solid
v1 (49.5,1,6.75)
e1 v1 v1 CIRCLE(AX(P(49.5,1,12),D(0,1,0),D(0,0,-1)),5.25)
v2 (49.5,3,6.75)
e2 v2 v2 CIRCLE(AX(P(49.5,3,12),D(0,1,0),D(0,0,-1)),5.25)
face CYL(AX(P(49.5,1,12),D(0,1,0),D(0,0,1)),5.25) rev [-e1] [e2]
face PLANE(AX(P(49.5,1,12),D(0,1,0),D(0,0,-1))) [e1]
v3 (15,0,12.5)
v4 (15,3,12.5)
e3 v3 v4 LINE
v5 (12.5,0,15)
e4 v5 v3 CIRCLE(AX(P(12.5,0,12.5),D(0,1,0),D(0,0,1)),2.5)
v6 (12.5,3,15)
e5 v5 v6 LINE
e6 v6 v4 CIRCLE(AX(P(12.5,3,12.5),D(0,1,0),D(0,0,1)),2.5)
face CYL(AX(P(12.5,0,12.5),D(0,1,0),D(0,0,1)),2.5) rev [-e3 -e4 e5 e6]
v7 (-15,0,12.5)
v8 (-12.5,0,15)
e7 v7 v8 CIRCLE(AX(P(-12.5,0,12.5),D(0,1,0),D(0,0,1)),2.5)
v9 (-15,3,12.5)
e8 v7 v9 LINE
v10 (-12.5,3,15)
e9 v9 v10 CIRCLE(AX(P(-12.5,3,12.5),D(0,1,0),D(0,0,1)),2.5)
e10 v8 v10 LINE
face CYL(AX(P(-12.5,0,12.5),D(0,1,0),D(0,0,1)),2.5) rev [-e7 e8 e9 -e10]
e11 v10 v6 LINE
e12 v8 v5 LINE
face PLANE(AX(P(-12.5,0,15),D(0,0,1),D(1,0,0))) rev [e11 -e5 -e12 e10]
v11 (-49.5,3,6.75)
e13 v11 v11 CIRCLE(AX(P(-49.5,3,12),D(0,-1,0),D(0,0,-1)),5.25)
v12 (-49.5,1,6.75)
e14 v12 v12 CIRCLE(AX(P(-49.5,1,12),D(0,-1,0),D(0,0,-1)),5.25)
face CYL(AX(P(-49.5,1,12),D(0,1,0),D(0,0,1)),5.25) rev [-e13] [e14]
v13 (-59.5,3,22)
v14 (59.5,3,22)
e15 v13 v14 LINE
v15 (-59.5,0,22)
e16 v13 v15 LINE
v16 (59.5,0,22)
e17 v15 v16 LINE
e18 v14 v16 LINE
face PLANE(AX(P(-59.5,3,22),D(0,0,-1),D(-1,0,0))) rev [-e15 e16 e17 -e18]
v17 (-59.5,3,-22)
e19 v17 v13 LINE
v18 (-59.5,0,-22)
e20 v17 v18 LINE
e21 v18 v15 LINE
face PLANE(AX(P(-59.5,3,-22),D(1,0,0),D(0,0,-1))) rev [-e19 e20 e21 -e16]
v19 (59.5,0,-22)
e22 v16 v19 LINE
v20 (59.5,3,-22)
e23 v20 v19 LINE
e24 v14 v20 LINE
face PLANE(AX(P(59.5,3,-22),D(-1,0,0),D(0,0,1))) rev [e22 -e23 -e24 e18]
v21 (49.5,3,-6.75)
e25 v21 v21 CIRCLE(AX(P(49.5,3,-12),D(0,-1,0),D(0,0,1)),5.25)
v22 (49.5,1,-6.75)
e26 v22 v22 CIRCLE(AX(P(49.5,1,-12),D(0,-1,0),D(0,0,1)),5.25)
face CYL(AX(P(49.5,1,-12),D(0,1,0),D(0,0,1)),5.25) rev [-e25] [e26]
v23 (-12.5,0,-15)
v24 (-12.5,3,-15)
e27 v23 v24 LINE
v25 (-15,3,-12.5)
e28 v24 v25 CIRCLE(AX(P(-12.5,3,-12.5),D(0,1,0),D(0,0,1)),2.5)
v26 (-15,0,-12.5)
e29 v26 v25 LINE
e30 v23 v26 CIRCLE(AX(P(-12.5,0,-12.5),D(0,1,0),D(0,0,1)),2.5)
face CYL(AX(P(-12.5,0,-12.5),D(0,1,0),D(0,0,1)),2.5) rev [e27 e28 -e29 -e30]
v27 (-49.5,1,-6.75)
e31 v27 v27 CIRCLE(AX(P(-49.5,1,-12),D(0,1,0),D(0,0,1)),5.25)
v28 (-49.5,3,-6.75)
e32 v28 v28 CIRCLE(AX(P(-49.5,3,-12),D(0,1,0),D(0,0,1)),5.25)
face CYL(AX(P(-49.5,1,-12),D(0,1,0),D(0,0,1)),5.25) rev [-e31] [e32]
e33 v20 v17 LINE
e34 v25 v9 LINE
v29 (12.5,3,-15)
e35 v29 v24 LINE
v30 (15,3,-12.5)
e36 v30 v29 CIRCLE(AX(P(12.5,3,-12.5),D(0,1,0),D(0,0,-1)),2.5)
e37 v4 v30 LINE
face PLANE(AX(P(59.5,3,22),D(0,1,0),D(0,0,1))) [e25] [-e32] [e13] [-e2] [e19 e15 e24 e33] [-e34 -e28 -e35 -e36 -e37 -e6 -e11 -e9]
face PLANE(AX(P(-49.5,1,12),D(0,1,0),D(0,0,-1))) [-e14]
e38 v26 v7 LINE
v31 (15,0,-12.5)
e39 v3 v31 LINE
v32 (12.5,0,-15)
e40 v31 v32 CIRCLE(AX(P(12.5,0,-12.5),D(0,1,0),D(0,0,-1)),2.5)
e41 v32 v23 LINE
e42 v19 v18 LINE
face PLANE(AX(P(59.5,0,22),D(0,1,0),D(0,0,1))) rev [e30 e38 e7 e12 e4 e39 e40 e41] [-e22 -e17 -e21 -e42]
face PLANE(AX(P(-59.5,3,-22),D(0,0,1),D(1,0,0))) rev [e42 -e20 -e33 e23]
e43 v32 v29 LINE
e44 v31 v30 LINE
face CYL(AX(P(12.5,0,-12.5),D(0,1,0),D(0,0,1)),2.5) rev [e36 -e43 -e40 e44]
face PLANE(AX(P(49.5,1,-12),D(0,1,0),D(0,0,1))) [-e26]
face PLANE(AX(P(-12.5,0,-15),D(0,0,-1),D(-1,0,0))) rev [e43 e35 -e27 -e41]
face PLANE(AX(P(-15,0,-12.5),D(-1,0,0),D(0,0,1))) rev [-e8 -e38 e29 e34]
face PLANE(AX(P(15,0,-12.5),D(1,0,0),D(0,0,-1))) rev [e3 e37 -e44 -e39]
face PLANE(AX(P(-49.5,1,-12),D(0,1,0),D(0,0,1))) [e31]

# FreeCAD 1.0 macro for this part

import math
import FreeCAD as App
import Part
import Sketcher

V = App.Vector


def add_polygon(sketch, points):
    """Adds a closed chain of lines whose ends are joined by coincident constraints."""
    first, n = sketch.GeometryCount, len(points)
    for a, b in zip(points, points[1:] + points[:1]):
        sketch.addGeometry(Part.LineSegment(App.Vector(*a, 0), App.Vector(*b, 0)), False)
    for i in range(n):
        sketch.addConstraint(Sketcher.Constraint("Coincident", first + i, 2, first + (i + 1) % n, 1))

doc = App.newDocument("Part")
body = doc.addObject("PartDesign::Body", "Body")

sketch1 = body.newObject("Sketcher::SketchObject", "Sketch")
sketch1.AttachmentSupport = (doc.getObject("XZ_Plane"), [""])
sketch1.MapMode = "FlatFace"
add_polygon(sketch1, [(-60, -22), (-60, 22), (60, 22), (60, -22)])
sketch1.addConstraint(Sketcher.Constraint("Vertical", 0))
sketch1.addConstraint(Sketcher.Constraint("Horizontal", 1))
sketch1.addConstraint(Sketcher.Constraint("Vertical", 2))
sketch1.addConstraint(Sketcher.Constraint("Horizontal", 3))
sketch1.addConstraint(Sketcher.Constraint("Symmetric", 0, 2, 2, 2, -1, 1))
sketch1.addConstraint(Sketcher.Constraint("DistanceX", 1, 1, 1, 2, 119.0))
sketch1.addConstraint(Sketcher.Constraint("DistanceY", 0, 1, 0, 2, 44.0))
pad1 = body.newObject("PartDesign::Pad", "Pad")
pad1.Profile = sketch1
pad1.Length = 3
pad1.Reversed = True

sketch2 = body.newObject("Sketcher::SketchObject", "Sketch001")
sketch2.AttachmentSupport = (doc.getObject("XZ_Plane"), [""])
sketch2.MapMode = "FlatFace"
sketch2.AttachmentOffset = App.Placement(V(0, 0, -3), App.Rotation())
sketch2.addGeometry(Part.Circle(V(-50, -12, 0), V(0, 0, 1), 5), False)
sketch2.addConstraint(Sketcher.Constraint("Diameter", 0, 10.5))
sketch2.addConstraint(Sketcher.Constraint("DistanceY", 0, 3, -1, 1, 12.0))
sketch2.addConstraint(Sketcher.Constraint("DistanceX", 0, 3, -1, 1, 49.5))
pocket1 = body.newObject("PartDesign::Pocket", "Pocket")
pocket1.Profile = sketch2
pocket1.Length = 2
pocket1.Reversed = True
doc.recompute()

mirrored = body.newObject("PartDesign::Mirrored", "Mirrored")
mirrored.Originals = [pocket1]
mirrored.MirrorPlane = (doc.getObject("YZ_Plane"), [""])
body.Tip = mirrored
doc.recompute()

mirrored2 = body.newObject("PartDesign::Mirrored", "Mirrored001")
mirrored2.Originals = [pocket1]
mirrored2.MirrorPlane = (doc.getObject("XY_Plane"), [""])
body.Tip = mirrored2

sketch3 = body.newObject("Sketcher::SketchObject", "Sketch002")
sketch3.AttachmentSupport = (doc.getObject("XZ_Plane"), [""])
sketch3.MapMode = "FlatFace"
sketch3.AttachmentOffset = App.Placement(V(0, 0, -3), App.Rotation())
sketch3.addGeometry(Part.Circle(V(50, 12, 0), V(0, 0, 1), 5), False)
sketch3.addConstraint(Sketcher.Constraint("Diameter", 0, 10.5))
sketch3.addConstraint(Sketcher.Constraint("DistanceY", -1, 1, 0, 3, 12.0))
sketch3.addConstraint(Sketcher.Constraint("DistanceX", -1, 1, 0, 3, 49.5))
pocket2 = body.newObject("PartDesign::Pocket", "Pocket001")
pocket2.Profile = sketch3
pocket2.Length = 2
pocket2.Reversed = True

sketch4 = body.newObject("Sketcher::SketchObject", "Sketch003")
sketch4.AttachmentSupport = (doc.getObject("XZ_Plane"), [""])
sketch4.MapMode = "FlatFace"
sketch4.AttachmentOffset = App.Placement(V(0, 0, -3), App.Rotation())
sketch4.addGeometry(Part.LineSegment(V(12.5, -15, 0), V(-12.5, -15, 0)), False)
sketch4.addGeometry(Part.ArcOfCircle(Part.Circle(V(-12.5, -12.5, 0), V(0, 0, 1), 2.5), math.radians(180), math.radians(270)), False)
sketch4.addGeometry(Part.LineSegment(V(-15, -12.5, 0), V(-15, 12.5, 0)), False)
sketch4.addGeometry(Part.ArcOfCircle(Part.Circle(V(-12.5, 12.5, 0), V(0, 0, 1), 2.5), math.radians(90), math.radians(180)), False)
sketch4.addGeometry(Part.LineSegment(V(-12.5, 15, 0), V(12.5, 15, 0)), False)
sketch4.addGeometry(Part.ArcOfCircle(Part.Circle(V(12.5, 12.5, 0), V(0, 0, 1), 2.5), math.radians(0), math.radians(90)), False)
sketch4.addGeometry(Part.LineSegment(V(15, 12.5, 0), V(15, -12.5, 0)), False)
sketch4.addGeometry(Part.ArcOfCircle(Part.Circle(V(12.5, -12.5, 0), V(0, 0, 1), 2.5), math.radians(-90), math.radians(0)), False)
sketch4.addConstraint(Sketcher.Constraint("Tangent", 0, 2, 1, 2))
sketch4.addConstraint(Sketcher.Constraint("Tangent", 1, 1, 2, 1))
sketch4.addConstraint(Sketcher.Constraint("Tangent", 2, 2, 3, 2))
sketch4.addConstraint(Sketcher.Constraint("Tangent", 3, 1, 4, 1))
sketch4.addConstraint(Sketcher.Constraint("Tangent", 4, 2, 5, 2))
sketch4.addConstraint(Sketcher.Constraint("Tangent", 5, 1, 6, 1))
sketch4.addConstraint(Sketcher.Constraint("Tangent", 6, 2, 7, 2))
sketch4.addConstraint(Sketcher.Constraint("Tangent", 7, 1, 0, 1))
sketch4.addConstraint(Sketcher.Constraint("Horizontal", 0))
sketch4.addConstraint(Sketcher.Constraint("Vertical", 2))
sketch4.addConstraint(Sketcher.Constraint("Horizontal", 4))
sketch4.addConstraint(Sketcher.Constraint("Vertical", 6))
sketch4.addConstraint(Sketcher.Constraint("Equal", 1, 3))
sketch4.addConstraint(Sketcher.Constraint("Equal", 3, 5))
sketch4.addConstraint(Sketcher.Constraint("Equal", 5, 7))
sketch4.addConstraint(Sketcher.Constraint("Symmetric", 1, 3, 5, 3, -1, 1))
sketch4.addConstraint(Sketcher.Constraint("Equal", 4, 2))
sketch4.addConstraint(Sketcher.Constraint("Radius", 1, 2.5))
sketch4.addConstraint(Sketcher.Constraint("DistanceX", 0, 2, 0, 1, 25.0))
pocket3 = body.newObject("PartDesign::Pocket", "Pocket002")
pocket3.Profile = sketch4
pocket3.Length = 3
pocket3.Reversed = True

doc.recompute()
